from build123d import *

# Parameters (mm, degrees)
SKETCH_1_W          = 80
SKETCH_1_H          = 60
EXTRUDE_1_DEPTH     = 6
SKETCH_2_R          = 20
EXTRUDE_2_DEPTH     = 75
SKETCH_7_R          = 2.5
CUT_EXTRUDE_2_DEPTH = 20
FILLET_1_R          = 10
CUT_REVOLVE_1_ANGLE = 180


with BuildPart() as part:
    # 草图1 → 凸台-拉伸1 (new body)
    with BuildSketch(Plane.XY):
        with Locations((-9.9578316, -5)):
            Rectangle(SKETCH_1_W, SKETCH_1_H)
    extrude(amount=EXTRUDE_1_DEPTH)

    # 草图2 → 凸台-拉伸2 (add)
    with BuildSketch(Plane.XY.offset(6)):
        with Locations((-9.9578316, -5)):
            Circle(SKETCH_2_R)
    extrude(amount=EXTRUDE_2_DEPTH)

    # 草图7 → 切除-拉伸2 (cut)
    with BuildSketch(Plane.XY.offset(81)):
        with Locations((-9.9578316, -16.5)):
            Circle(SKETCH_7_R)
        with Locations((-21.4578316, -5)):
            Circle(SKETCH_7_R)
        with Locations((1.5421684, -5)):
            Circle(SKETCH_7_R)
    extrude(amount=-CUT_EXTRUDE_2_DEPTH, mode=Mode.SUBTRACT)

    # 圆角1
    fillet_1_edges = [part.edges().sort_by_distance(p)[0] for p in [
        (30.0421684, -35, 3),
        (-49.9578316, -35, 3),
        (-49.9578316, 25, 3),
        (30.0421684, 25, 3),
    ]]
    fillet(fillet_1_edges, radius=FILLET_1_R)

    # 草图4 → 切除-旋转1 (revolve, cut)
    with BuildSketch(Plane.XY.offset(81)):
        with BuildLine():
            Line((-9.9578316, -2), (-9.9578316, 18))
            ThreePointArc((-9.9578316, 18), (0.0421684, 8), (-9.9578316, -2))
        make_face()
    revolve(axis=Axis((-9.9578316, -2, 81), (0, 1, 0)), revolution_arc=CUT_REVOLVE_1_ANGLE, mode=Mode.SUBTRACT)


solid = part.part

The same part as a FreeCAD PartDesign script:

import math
import FreeCAD as App
import Part
import Sketcher
from FreeCAD import Vector
Q = App.Units.Quantity


def edges_at(feature, points):
    """Names of the edges that pass closest to the given points."""
    edges = feature.Shape.Edges
    near = lambda p: min(range(len(edges)), key=lambda i: edges[i].distToShape(Part.Vertex(*p))[0])
    return sorted({f"Edge{near(p) + 1}" for p in points})


def add_polygon(sketch, points):
    """Adds a closed chain of lines whose ends are joined by coincident constraints."""
    first, n = sketch.GeometryCount, len(points)
    for a, b in zip(points, points[1:] + points[:1]):
        sketch.addGeometry(Part.LineSegment(App.Vector(*a, 0), App.Vector(*b, 0)), False)
    for i in range(n):
        sketch.addConstraint(Sketcher.Constraint("Coincident", first + i, 2, first + (i + 1) % n, 1))

doc = App.newDocument("Part")
body = doc.addObject("PartDesign::Body", "Body")

sketch1 = body.newObject("Sketcher::SketchObject", "Sketch")
sketch1.AttachmentSupport = (doc.getObject("XY_Plane"), [""])
sketch1.MapMode = "FlatFace"
add_polygon(sketch1, [(-50, 25), (-50, -35), (30, -35), (30, 25)])
sketch1.addConstraint([
    Sketcher.Constraint("Vertical", 0),
    Sketcher.Constraint("Horizontal", 1),
    Sketcher.Constraint("Vertical", 2),
    Sketcher.Constraint("Horizontal", 3),
    Sketcher.Constraint("DistanceX", 1, 1, 1, 2, Q("80 mm")),
    Sketcher.Constraint("DistanceY", 0, 2, 0, 1, Q("60 mm")),
    Sketcher.Constraint("DistanceY", 0, 2, -1, 1, Q("35 mm")),
    Sketcher.Constraint("DistanceX", 0, 2, -1, 1, Q("49.957832 mm")),
])
pad1 = body.newObject("PartDesign::Pad", "Pad")
pad1.Profile = sketch1
pad1.Length = 6

sketch2 = body.newObject("Sketcher::SketchObject", "Sketch001")
sketch2.AttachmentSupport = (doc.getObject("XY_Plane"), [""])
sketch2.MapMode = "FlatFace"
sketch2.AttachmentOffset = App.Placement(Vector(0, 0, 6), App.Rotation())
sketch2.addGeometry(Part.Circle(Vector(-10, -5, 0), Vector(0, 0, 1), 20), False)
sketch2.addConstraint([
    Sketcher.Constraint("Diameter", 0, Q("40 mm")),
    Sketcher.Constraint("DistanceY", 0, 3, -1, 1, Q("5 mm")),
    Sketcher.Constraint("DistanceX", 0, 3, -1, 1, Q("9.957832 mm")),
])
pad2 = body.newObject("PartDesign::Pad", "Pad001")
pad2.Profile = sketch2
pad2.Length = 75

sketch3 = body.newObject("Sketcher::SketchObject", "Sketch002")
sketch3.AttachmentSupport = (doc.getObject("XY_Plane"), [""])
sketch3.MapMode = "FlatFace"
sketch3.AttachmentOffset = App.Placement(Vector(0, 0, 81), App.Rotation())
sketch3.addGeometry([
    Part.Circle(Vector(-10, -16.5, 0), Vector(0, 0, 1), 2.5),
    Part.Circle(Vector(-21.5, -5, 0), Vector(0, 0, 1), 2.5),
    Part.Circle(Vector(1.5, -5, 0), Vector(0, 0, 1), 2.5),
], False)
sketch3.addConstraint([
    Sketcher.Constraint("Equal", 0, 1),
    Sketcher.Constraint("Equal", 1, 2),
    Sketcher.Constraint("Horizontal", 1, 3, 2, 3),
    Sketcher.Constraint("Diameter", 0, Q("5 mm")),
    Sketcher.Constraint("DistanceY", 1, 3, -1, 1, Q("5 mm")),
    Sketcher.Constraint("DistanceX", 1, 3, 2, 3, Q("23 mm")),
    Sketcher.Constraint("DistanceY", 0, 3, -1, 1, Q("16.5 mm")),
    Sketcher.Constraint("DistanceX", 1, 3, 0, 3, Q("11.5 mm")),
    Sketcher.Constraint("DistanceX", 0, 3, -1, 1, Q("9.957832 mm")),
])
pocket1 = body.newObject("PartDesign::Pocket", "Pocket")
pocket1.Profile = sketch3
pocket1.Length = 20
doc.recompute()

fillet = body.newObject("PartDesign::Fillet", "Fillet")
fillet.Base = (pocket1, edges_at(pocket1, [
    (30.042, -35, 3),
    (-49.958, -35, 3),
    (-49.958, 25, 3),
    (30.042, 25, 3),
]))
fillet.Radius = 10

sketch4 = body.newObject("Sketcher::SketchObject", "Sketch003")
sketch4.AttachmentSupport = (doc.getObject("XY_Plane"), [""])
sketch4.MapMode = "FlatFace"
sketch4.AttachmentOffset = App.Placement(Vector(0, 0, 81), App.Rotation())
sketch4.addGeometry([
    Part.LineSegment(Vector(-10, 18, 0), Vector(-10, -2, 0)),
    Part.ArcOfCircle(Part.Circle(Vector(-10, 8, 0), Vector(0, 0, 1), 10), math.radians(-90), math.radians(90)),
], False)
sketch4.addGeometry(Part.LineSegment(Vector(-10, -2, 0), Vector(-10, 18, 0)), True)
sketch4.addConstraint([
    Sketcher.Constraint("Coincident", 0, 1, 1, 2),
    Sketcher.Constraint("Coincident", 1, 1, 0, 2),
    Sketcher.Constraint("Vertical", 0),
    Sketcher.Constraint("Vertical", 2),
    Sketcher.Constraint("Coincident", 2, 1, 1, 1),
    Sketcher.Constraint("Vertical", 1, 3, 0, 1),
    Sketcher.Constraint("Equal", 0, 2),
    Sketcher.Constraint("Radius", 1, Q("10 mm")),
    Sketcher.Constraint("DistanceY", -1, 1, 1, 3, Q("8 mm")),
    Sketcher.Constraint("DistanceX", 1, 3, -1, 1, Q("9.957832 mm")),
])
groove = body.newObject("PartDesign::Groove", "Groove")
groove.Profile = sketch4
groove.ReferenceAxis = (sketch4, ["Axis0"])
groove.Angle = 180

doc.recompute()
